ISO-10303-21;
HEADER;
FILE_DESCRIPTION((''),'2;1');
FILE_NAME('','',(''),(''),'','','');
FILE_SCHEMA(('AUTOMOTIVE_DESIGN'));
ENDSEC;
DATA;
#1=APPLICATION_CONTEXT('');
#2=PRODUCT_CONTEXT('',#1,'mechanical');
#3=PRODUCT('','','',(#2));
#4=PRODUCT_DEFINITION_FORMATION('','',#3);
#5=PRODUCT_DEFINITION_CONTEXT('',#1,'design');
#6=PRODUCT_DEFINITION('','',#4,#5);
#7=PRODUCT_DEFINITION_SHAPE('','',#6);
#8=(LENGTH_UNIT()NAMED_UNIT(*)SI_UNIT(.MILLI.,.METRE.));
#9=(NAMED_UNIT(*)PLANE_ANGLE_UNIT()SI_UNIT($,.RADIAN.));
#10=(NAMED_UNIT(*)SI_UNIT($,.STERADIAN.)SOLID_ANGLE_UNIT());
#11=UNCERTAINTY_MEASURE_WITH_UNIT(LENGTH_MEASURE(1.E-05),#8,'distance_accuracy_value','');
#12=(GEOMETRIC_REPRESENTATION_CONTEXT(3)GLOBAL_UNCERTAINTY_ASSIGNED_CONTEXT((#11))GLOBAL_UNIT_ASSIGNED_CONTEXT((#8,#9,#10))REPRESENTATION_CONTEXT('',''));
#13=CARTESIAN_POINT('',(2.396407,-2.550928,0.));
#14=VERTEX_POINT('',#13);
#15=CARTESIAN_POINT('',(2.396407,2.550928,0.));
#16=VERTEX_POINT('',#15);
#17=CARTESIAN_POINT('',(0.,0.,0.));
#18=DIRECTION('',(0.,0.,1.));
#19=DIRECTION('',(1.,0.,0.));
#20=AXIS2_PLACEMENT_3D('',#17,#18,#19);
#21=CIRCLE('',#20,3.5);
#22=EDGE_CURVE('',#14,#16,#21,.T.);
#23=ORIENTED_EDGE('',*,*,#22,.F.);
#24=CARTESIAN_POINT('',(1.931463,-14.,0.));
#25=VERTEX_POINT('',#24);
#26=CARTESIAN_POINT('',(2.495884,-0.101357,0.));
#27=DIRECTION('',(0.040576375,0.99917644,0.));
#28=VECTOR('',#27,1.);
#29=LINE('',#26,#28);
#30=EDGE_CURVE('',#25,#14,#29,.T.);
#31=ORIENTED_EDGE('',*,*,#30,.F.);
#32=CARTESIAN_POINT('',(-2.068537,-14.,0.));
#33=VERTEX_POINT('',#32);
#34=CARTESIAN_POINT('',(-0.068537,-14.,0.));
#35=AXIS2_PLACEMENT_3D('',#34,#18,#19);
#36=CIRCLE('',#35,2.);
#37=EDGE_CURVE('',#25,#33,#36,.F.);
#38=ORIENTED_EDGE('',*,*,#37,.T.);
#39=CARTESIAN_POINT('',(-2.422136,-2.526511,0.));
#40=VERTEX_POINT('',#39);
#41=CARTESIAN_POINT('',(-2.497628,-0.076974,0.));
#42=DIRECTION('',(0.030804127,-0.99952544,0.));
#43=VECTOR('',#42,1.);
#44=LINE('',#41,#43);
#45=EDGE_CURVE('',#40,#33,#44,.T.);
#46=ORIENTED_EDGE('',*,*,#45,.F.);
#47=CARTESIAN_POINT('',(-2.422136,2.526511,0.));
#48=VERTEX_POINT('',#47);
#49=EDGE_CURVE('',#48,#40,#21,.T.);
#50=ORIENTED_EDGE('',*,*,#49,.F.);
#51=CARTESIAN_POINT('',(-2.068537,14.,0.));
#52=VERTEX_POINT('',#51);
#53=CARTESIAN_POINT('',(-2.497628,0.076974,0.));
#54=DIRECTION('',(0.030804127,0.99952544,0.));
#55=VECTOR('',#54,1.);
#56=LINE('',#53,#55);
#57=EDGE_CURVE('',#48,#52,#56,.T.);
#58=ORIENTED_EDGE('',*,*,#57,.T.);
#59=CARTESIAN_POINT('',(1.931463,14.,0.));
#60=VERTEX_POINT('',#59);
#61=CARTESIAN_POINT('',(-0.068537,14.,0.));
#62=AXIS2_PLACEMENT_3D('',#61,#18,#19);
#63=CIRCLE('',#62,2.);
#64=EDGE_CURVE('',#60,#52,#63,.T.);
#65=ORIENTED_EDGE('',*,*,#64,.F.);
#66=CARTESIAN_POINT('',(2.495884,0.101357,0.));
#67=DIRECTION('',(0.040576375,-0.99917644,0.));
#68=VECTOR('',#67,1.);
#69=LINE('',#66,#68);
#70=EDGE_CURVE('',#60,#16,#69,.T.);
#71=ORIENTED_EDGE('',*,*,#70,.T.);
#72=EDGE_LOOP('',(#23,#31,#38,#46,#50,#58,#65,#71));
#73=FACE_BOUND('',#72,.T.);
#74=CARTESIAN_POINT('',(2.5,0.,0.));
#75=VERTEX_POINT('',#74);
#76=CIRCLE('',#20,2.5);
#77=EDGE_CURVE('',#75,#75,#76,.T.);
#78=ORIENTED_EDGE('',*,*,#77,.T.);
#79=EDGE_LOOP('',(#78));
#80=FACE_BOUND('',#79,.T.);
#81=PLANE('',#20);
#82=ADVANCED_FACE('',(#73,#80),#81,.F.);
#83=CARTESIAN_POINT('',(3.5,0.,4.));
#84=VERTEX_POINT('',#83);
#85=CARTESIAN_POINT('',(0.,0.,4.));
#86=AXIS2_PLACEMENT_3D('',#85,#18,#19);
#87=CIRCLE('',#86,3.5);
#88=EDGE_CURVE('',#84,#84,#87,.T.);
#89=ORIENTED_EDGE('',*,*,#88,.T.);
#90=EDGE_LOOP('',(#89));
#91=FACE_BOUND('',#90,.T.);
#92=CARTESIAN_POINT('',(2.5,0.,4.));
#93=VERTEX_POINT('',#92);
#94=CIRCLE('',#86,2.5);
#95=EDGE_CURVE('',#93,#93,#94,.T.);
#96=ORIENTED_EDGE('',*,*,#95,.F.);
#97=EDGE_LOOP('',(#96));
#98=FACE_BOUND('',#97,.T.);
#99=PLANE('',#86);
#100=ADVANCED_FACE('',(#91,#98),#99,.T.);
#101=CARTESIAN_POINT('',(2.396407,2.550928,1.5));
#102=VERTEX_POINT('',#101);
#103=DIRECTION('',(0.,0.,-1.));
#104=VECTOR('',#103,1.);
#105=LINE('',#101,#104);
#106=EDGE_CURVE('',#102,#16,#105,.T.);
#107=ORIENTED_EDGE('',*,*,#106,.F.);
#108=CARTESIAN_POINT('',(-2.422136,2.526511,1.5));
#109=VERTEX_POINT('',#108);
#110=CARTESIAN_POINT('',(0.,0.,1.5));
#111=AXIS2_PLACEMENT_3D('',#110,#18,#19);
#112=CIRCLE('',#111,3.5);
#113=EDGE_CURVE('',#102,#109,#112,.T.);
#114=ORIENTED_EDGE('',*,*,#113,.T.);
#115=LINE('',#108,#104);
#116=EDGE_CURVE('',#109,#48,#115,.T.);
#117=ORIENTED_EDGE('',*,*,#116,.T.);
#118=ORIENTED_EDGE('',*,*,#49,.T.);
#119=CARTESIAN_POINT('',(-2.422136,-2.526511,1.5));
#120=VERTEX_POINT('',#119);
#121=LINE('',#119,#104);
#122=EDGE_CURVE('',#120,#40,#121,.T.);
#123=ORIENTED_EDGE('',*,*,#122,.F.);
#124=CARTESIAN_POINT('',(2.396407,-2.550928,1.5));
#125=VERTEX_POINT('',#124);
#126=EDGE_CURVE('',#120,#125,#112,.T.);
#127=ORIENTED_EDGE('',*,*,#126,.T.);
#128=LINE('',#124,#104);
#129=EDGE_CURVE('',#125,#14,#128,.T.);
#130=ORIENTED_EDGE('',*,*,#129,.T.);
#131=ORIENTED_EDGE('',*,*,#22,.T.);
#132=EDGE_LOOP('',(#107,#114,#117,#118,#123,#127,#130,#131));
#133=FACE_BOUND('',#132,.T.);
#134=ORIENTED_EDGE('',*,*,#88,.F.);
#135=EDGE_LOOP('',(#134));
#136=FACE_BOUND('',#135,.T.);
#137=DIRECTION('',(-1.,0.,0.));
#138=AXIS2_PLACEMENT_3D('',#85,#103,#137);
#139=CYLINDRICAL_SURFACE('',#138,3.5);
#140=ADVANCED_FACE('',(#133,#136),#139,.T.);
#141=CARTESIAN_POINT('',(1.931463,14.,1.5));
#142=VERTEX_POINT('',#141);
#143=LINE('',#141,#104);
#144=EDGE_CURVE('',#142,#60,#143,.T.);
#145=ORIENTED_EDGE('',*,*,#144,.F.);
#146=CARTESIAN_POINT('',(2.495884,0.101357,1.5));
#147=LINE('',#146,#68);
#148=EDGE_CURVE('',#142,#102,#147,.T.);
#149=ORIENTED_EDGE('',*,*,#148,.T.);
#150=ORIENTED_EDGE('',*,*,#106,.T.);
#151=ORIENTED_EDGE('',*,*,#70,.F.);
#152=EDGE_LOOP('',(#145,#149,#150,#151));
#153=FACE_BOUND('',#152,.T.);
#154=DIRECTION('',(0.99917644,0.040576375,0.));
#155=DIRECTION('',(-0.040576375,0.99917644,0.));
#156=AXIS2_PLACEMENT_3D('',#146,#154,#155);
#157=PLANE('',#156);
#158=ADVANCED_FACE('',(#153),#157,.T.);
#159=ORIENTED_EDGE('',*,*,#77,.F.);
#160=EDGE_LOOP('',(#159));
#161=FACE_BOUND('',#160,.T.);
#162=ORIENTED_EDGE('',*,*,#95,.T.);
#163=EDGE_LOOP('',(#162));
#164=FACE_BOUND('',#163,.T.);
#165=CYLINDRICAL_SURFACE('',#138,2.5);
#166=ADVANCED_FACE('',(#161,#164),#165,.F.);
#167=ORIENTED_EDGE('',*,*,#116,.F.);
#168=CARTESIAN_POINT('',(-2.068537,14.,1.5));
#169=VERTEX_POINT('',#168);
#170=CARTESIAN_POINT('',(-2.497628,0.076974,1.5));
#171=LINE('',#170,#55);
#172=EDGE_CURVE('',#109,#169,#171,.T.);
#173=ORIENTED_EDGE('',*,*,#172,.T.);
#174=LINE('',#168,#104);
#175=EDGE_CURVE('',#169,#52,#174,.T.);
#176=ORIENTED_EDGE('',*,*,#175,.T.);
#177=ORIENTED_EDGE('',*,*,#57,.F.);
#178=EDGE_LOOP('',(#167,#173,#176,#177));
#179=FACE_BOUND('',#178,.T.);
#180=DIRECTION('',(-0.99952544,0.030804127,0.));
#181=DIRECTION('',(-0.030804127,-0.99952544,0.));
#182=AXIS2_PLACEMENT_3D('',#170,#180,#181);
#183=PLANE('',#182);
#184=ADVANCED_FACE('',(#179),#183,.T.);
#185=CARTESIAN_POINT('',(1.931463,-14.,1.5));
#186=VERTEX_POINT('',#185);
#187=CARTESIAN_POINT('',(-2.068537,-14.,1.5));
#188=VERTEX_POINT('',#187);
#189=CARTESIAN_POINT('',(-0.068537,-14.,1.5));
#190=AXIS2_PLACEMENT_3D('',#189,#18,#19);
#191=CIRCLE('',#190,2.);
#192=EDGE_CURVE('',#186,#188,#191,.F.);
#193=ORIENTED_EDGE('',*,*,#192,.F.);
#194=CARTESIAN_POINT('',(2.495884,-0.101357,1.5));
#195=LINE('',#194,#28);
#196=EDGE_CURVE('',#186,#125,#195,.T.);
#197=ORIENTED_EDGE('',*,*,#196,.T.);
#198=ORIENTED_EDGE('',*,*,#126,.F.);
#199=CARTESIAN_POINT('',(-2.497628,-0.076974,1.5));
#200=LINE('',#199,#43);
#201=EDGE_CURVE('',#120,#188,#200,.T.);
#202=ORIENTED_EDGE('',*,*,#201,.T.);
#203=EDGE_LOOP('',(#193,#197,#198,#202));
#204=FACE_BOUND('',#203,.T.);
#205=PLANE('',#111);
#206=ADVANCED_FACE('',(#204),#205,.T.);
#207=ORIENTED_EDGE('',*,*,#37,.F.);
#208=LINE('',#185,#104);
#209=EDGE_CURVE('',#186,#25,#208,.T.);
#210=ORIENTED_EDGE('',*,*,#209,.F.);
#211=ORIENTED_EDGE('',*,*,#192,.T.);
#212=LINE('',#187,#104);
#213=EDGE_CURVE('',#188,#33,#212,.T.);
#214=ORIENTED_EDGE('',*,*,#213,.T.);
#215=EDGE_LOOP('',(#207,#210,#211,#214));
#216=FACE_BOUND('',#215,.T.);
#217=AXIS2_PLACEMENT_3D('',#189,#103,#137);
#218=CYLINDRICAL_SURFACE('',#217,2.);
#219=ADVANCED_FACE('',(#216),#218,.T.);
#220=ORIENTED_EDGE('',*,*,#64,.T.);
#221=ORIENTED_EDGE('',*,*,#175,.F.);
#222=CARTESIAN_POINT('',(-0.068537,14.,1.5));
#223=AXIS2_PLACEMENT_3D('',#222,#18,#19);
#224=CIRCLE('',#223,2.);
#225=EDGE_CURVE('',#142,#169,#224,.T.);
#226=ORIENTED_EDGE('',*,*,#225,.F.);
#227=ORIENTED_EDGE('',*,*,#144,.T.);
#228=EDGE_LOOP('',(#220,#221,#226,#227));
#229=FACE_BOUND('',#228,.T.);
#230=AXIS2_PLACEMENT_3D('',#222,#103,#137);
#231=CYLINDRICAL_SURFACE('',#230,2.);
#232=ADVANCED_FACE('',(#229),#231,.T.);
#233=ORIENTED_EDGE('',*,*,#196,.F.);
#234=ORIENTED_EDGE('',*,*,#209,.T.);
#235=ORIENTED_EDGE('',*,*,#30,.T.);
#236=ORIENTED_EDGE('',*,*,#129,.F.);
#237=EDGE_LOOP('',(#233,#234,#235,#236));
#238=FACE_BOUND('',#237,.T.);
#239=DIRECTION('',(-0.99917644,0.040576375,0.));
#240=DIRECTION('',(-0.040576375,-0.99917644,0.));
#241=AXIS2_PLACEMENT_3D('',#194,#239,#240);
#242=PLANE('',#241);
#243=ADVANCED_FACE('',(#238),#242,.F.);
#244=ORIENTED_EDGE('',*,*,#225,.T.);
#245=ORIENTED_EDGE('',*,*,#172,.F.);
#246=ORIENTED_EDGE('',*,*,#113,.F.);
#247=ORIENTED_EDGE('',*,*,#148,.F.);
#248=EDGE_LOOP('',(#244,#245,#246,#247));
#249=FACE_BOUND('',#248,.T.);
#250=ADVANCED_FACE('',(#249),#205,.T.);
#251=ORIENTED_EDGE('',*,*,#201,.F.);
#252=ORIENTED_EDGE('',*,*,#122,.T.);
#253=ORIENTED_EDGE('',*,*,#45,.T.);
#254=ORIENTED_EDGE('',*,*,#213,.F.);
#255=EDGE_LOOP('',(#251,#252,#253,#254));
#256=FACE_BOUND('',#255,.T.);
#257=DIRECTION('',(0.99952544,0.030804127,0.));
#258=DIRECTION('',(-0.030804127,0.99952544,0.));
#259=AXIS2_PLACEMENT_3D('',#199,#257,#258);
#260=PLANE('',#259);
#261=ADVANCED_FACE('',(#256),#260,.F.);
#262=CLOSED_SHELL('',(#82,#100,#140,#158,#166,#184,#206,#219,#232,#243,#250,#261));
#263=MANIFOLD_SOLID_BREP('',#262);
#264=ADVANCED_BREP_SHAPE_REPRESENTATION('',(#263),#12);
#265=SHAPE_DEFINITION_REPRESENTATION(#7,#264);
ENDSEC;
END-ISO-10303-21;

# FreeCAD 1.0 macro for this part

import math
import FreeCAD as App
import Part
import Sketcher

V = App.Vector
Q = App.Units.Quantity

doc = App.newDocument("Part")
params = doc.addObject("Spreadsheet::Sheet", "Params")
for row, (alias, value) in enumerate([
    ("sketch1_radius", "3.5 mm"),
    ("sketch1_radius2", "2.5 mm"),
    ("pad1_length", "4 mm"),
    ("sketch2_radius", "2 mm"),
    ("sketch2_radius2", "3.5 mm"),
    ("pad2_length", "1.5 mm"),
], start=1):
    params.set(f"A{row}", alias)
    params.set(f"B{row}", "=" + value)
    params.setAlias(f"B{row}", alias)

body = doc.addObject("PartDesign::Body", "Body")

# Sketch on XY plane
sketch1 = body.newObject("Sketcher::SketchObject", "Sketch")
sketch1.AttachmentSupport = (doc.getObject("XY_Plane"), [""])
sketch1.MapMode = "FlatFace"
sketch1.addGeometry(Part.ArcOfCircle(Part.Circle(V(0, 0, 0), V(0, 0, 1), 3.5), math.radians(-134), math.radians(-47)), False)
sketch1.addGeometry(Part.ArcOfCircle(Part.Circle(V(0, 0, 0), V(0, 0, 1), 3.5), math.radians(-47), math.radians(0)), False)
sketch1.addGeometry(Part.ArcOfCircle(Part.Circle(V(0, 0, 0), V(0, 0, 1), 3.5), math.radians(0), math.radians(47)), False)
sketch1.addGeometry(Part.ArcOfCircle(Part.Circle(V(0, 0, 0), V(0, 0, 1), 3.5), math.radians(47), math.radians(134)), False)
sketch1.addGeometry(Part.ArcOfCircle(Part.Circle(V(0, 0, 0), V(0, 0, 1), 3.5), math.radians(134), math.radians(226)), False)
sketch1.addGeometry(Part.ArcOfCircle(Part.Circle(V(0, 0, 0), V(0, 0, 1), 2.5), math.radians(5), math.radians(176)), False)
sketch1.addGeometry(Part.ArcOfCircle(Part.Circle(V(0, 0, 0), V(0, 0, 1), 2.5), math.radians(0), math.radians(4.65)), False)
sketch1.addGeometry(Part.ArcOfCircle(Part.Circle(V(0, 0, 0), V(0, 0, 1), 2.5), math.radians(-4.65), math.radians(0)), False)
sketch1.addGeometry(Part.ArcOfCircle(Part.Circle(V(0, 0, 0), V(0, 0, 1), 2.5), math.radians(-176), math.radians(-5)), False)
sketch1.addGeometry(Part.ArcOfCircle(Part.Circle(V(0, 0, 0), V(0, 0, 1), 2.5), math.radians(180), math.radians(183.53)), False)
sketch1.addGeometry(Part.ArcOfCircle(Part.Circle(V(0, 0, 0), V(0, 0, 1), 2.5), math.radians(176.47), math.radians(180)), False)
sketch1.addConstraint(Sketcher.Constraint("Tangent", 0, 2, 1, 1))
sketch1.addConstraint(Sketcher.Constraint("Tangent", 1, 2, 2, 1))
sketch1.addConstraint(Sketcher.Constraint("Tangent", 2, 2, 3, 1))
sketch1.addConstraint(Sketcher.Constraint("Tangent", 3, 2, 4, 1))
sketch1.addConstraint(Sketcher.Constraint("Tangent", 4, 2, 0, 1))
sketch1.addConstraint(Sketcher.Constraint("Tangent", 5, 1, 6, 2))
sketch1.addConstraint(Sketcher.Constraint("Tangent", 6, 1, 7, 2))
sketch1.addConstraint(Sketcher.Constraint("Tangent", 7, 1, 8, 2))
sketch1.addConstraint(Sketcher.Constraint("Tangent", 8, 1, 9, 2))
sketch1.addConstraint(Sketcher.Constraint("Tangent", 9, 1, 10, 2))
sketch1.addConstraint(Sketcher.Constraint("Tangent", 10, 1, 5, 2))
sketch1.addConstraint(Sketcher.Constraint("Coincident", 0, 3, -1, 1))
sketch1.addConstraint(Sketcher.Constraint("Coincident", 2, 3, -1, 1))
sketch1.addConstraint(Sketcher.Constraint("Coincident", 5, 3, -1, 1))
sketch1.addConstraint(Sketcher.Constraint("Coincident", 7, 3, -1, 1))
sketch1.addConstraint(Sketcher.Constraint("Equal", 8, 9))
sketch1.addConstraint(Sketcher.Constraint("PointOnObject", 1, 2, -1))
sketch1.addConstraint(Sketcher.Constraint("PointOnObject", 6, 1, -1))
sketch1.addConstraint(Sketcher.Constraint("PointOnObject", 9, 1, -1))
sketch1.addConstraint(Sketcher.Constraint("Vertical", 0, 2, 2, 2))
sketch1.addConstraint(Sketcher.Constraint("Vertical", 3, 2, 4, 2))
sketch1.addConstraint(Sketcher.Constraint("Vertical", 5, 1, 7, 1))
sketch1.addConstraint(Sketcher.Constraint("Vertical", 8, 1, 10, 1))
sketch1.addConstraint(Sketcher.Constraint("Radius", 0, Q("3.5 mm")))
sketch1.addConstraint(Sketcher.Constraint("Radius", 5, Q("2.5 mm")))
sketch1.addConstraint(Sketcher.Constraint("DistanceY", -1, 1, 3, 2, Q("2.526511 mm")))
sketch1.addConstraint(Sketcher.Constraint("DistanceX", 2, 2, 5, 1, Q("0.095361 mm")))
sketch1.addConstraint(Sketcher.Constraint("DistanceY", 7, 1, 5, 1, Q("0.40543 mm")))
sketch1.addConstraint(Sketcher.Constraint("DistanceX", 8, 1, 4, 2, Q("0.073119 mm")))
sketch1.setExpression("Constraints[23]", "Params.sketch1_radius")
sketch1.setExpression("Constraints[24]", "Params.sketch1_radius2")
pad1 = body.newObject("PartDesign::Pad", "Pad")
pad1.Profile = sketch1
pad1.setExpression("Length", "Params.pad1_length")

# Sketch on XY plane
sketch2 = body.newObject("Sketcher::SketchObject", "Sketch001")
sketch2.AttachmentSupport = (doc.getObject("XY_Plane"), [""])
sketch2.MapMode = "FlatFace"
sketch2.addGeometry(Part.ArcOfCircle(Part.Circle(V(0, 0, 0), V(0, 0, 1), 3.5), math.radians(47), math.radians(134)), False)
sketch2.addGeometry(Part.LineSegment(V(2.4, 2.6, 0), V(1.9, 14, 0)), False)
sketch2.addGeometry(Part.ArcOfCircle(Part.Circle(V(-0.1, 14, 0), V(0, 0, 1), 2), math.radians(0), math.radians(180)), False)
sketch2.addGeometry(Part.LineSegment(V(-2.1, 14, 0), V(-2.4, 2.5, 0)), False)
sketch2.addGeometry(Part.ArcOfCircle(Part.Circle(V(0, 0, 0), V(0, 0, 1), 3.5), math.radians(-134), math.radians(-47)), False)
sketch2.addGeometry(Part.LineSegment(V(-2.4, -2.5, 0), V(-2.1, -14, 0)), False)
sketch2.addGeometry(Part.ArcOfCircle(Part.Circle(V(-0.1, -14, 0), V(0, 0, 1), 2), math.radians(180), math.radians(360)), False)
sketch2.addGeometry(Part.LineSegment(V(1.9, -14, 0), V(2.4, -2.6, 0)), False)
sketch2.addConstraint(Sketcher.Constraint("Coincident", 0, 1, 1, 1))
sketch2.addConstraint(Sketcher.Constraint("Coincident", 1, 2, 2, 1))
sketch2.addConstraint(Sketcher.Constraint("Coincident", 2, 2, 3, 1))
sketch2.addConstraint(Sketcher.Constraint("Coincident", 3, 2, 0, 2))
sketch2.addConstraint(Sketcher.Constraint("Coincident", 4, 1, 5, 1))
sketch2.addConstraint(Sketcher.Constraint("Coincident", 5, 2, 6, 1))
sketch2.addConstraint(Sketcher.Constraint("Coincident", 6, 2, 7, 1))
sketch2.addConstraint(Sketcher.Constraint("Coincident", 7, 2, 4, 2))
sketch2.addConstraint(Sketcher.Constraint("Coincident", 0, 3, -1, 1))
sketch2.addConstraint(Sketcher.Constraint("Coincident", 4, 3, -1, 1))
sketch2.addConstraint(Sketcher.Constraint("Equal", 0, 4))
sketch2.addConstraint(Sketcher.Constraint("Equal", 2, 6))
sketch2.addConstraint(Sketcher.Constraint("Symmetric", 2, 3, 6, 3, -1))
sketch2.addConstraint(Sketcher.Constraint("Horizontal", 2, 3, 1, 2))
sketch2.addConstraint(Sketcher.Constraint("Horizontal", 1, 2, 2, 2))
sketch2.addConstraint(Sketcher.Constraint("Horizontal", 6, 3, 5, 2))
sketch2.addConstraint(Sketcher.Constraint("Horizontal", 5, 2, 6, 2))
sketch2.addConstraint(Sketcher.Constraint("Vertical", 3, 2, 4, 1))
sketch2.addConstraint(Sketcher.Constraint("Vertical", 0, 1, 7, 2))
sketch2.addConstraint(Sketcher.Constraint("Radius", 2, Q("2 mm")))
sketch2.addConstraint(Sketcher.Constraint("Radius", 0, Q("3.5 mm")))
sketch2.addConstraint(Sketcher.Constraint("DistanceY", -1, 1, 2, 3, Q("14 mm")))
sketch2.addConstraint(Sketcher.Constraint("DistanceX", 3, 2, 2, 2, Q("0.353599 mm")))
sketch2.addConstraint(Sketcher.Constraint("Distance", 1, Q("11.458509 mm")))
sketch2.addConstraint(Sketcher.Constraint("DistanceY", -1, 1, 3, 2, Q("2.526511 mm")))
sketch2.setExpression("Constraints[19]", "Params.sketch2_radius")
sketch2.setExpression("Constraints[20]", "Params.sketch2_radius2")
pad2 = body.newObject("PartDesign::Pad", "Pad001")
pad2.Profile = sketch2
pad2.setExpression("Length", "Params.pad2_length")

doc.recompute()
